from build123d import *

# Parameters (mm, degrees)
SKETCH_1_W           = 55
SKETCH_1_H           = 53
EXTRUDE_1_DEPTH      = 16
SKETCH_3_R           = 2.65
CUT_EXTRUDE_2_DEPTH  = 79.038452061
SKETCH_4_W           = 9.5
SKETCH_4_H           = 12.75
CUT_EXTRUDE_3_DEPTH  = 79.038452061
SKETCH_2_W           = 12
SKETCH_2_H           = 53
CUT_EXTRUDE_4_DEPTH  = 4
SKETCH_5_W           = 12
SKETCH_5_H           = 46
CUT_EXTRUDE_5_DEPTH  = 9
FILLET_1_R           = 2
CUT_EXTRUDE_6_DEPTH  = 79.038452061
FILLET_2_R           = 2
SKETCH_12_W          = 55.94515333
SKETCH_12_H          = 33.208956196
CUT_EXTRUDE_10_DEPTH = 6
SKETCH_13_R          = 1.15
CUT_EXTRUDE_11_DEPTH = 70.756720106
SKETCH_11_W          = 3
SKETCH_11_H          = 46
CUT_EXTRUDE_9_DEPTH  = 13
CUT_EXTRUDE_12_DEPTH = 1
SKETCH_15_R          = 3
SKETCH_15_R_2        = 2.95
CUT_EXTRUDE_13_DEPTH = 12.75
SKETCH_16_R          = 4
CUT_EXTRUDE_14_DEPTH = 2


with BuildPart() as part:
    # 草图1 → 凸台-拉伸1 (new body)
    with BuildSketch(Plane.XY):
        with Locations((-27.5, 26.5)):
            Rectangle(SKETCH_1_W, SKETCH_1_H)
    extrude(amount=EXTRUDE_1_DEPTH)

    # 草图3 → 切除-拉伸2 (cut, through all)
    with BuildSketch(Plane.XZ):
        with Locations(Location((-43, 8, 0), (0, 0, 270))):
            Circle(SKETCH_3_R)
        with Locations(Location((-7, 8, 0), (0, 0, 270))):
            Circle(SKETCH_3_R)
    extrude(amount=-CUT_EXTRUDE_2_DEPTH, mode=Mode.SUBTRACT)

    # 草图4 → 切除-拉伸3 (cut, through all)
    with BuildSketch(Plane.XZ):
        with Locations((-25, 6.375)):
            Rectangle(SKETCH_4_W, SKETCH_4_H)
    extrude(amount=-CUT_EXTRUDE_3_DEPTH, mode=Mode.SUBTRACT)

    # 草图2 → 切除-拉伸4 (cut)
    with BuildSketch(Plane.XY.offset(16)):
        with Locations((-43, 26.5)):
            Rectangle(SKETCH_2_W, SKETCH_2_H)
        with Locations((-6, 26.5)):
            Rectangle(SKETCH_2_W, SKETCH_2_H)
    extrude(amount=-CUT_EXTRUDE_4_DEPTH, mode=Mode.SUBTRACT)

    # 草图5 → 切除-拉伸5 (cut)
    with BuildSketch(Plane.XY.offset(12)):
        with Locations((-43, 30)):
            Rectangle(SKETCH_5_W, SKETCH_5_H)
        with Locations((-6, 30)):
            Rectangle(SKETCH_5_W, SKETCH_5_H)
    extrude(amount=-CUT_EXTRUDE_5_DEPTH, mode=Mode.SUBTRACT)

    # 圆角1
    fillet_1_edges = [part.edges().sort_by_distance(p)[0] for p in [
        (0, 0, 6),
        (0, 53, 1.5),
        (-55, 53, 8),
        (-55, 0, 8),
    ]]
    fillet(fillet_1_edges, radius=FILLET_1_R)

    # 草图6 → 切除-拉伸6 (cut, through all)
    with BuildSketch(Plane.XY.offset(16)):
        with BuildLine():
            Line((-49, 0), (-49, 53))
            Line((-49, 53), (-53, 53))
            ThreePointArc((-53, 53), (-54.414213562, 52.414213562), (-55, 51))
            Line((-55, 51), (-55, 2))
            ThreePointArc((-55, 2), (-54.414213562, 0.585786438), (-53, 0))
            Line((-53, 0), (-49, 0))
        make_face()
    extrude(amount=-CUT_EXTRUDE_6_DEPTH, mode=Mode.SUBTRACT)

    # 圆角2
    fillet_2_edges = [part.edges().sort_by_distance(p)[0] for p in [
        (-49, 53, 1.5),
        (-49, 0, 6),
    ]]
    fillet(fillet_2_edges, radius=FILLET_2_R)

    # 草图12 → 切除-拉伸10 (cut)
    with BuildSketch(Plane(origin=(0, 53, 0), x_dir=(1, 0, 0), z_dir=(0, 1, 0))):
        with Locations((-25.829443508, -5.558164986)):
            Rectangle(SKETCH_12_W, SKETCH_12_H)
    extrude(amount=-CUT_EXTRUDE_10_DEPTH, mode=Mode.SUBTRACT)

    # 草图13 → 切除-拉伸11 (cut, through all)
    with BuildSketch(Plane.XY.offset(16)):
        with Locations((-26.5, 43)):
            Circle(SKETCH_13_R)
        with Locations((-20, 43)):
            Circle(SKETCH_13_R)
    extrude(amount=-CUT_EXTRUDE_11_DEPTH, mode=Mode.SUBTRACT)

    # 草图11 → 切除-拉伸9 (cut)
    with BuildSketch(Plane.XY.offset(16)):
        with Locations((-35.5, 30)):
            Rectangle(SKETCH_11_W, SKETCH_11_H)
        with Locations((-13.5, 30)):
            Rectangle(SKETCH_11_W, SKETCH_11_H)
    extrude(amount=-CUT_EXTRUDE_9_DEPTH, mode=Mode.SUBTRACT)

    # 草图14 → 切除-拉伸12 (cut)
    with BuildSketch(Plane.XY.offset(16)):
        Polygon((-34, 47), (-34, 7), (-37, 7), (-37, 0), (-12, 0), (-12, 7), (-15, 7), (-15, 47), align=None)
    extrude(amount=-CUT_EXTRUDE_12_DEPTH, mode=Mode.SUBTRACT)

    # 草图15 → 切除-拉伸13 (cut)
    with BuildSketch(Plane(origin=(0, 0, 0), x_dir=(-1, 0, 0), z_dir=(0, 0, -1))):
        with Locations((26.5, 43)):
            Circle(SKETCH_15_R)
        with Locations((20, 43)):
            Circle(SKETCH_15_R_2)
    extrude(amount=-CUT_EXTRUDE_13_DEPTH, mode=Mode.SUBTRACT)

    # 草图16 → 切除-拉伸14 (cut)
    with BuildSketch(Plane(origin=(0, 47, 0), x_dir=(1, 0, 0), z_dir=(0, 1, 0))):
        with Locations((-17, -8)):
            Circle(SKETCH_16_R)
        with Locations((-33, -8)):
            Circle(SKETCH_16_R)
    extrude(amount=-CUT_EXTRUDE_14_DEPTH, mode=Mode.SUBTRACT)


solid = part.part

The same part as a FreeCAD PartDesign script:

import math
import FreeCAD as App
import Part
import Sketcher

V = App.Vector


def edges_at(feature, points):
    """Names of the edges that pass closest to the given points."""
    edges = feature.Shape.Edges
    near = lambda p: min(range(len(edges)), key=lambda i: edges[i].distToShape(Part.Vertex(*p))[0])
    return sorted({f"Edge{near(p) + 1}" for p in points})

doc = App.newDocument("Part")
body = doc.addObject("PartDesign::Body", "Body")

sketch1 = doc.addObject("Sketcher::SketchObject", "Sketch")
body.addObject(sketch1)
sketch1.AttachmentSupport = (doc.XY_Plane, [""])
sketch1.MapMode = "FlatFace"
sketch1.addGeometry([
    Part.LineSegment(V(-55, 53, 0), V(-55, 0, 0)),
    Part.LineSegment(V(-55, 0, 0), V(0, 0, 0)),
    Part.LineSegment(V(0, 0, 0), V(0, 53, 0)),
    Part.LineSegment(V(0, 53, 0), V(-55, 53, 0)),
], False)
sketch1.addConstraint([
    Sketcher.Constraint("Coincident", 0, 2, 1, 1),
    Sketcher.Constraint("Coincident", 1, 2, 2, 1),
    Sketcher.Constraint("Coincident", 2, 2, 3, 1),
    Sketcher.Constraint("Coincident", 3, 2, 0, 1),
    Sketcher.Constraint("Vertical", 0),
    Sketcher.Constraint("Horizontal", 1),
    Sketcher.Constraint("Vertical", 2),
    Sketcher.Constraint("Horizontal", 3),
    Sketcher.Constraint("Coincident", 1, 2, -1, 1),
    Sketcher.Constraint("DistanceX", 1, 1, 1, 2, 55.0),
    Sketcher.Constraint("DistanceY", 0, 2, 0, 1, 53.0),
])
pad1 = doc.addObject("PartDesign::Pad", "Pad")
body.addObject(pad1)
pad1.Profile = sketch1
pad1.Length = 16

sketch2 = doc.addObject("Sketcher::SketchObject", "Sketch001")
body.addObject(sketch2)
sketch2.AttachmentSupport = (doc.XZ_Plane, [""])
sketch2.MapMode = "FlatFace"
sketch2.addGeometry([
    Part.Circle(V(-43, 8, 0), V(0, 0, 1), 2.6),
    Part.Circle(V(-7, 8, 0), V(0, 0, 1), 2.6),
], False)
sketch2.addConstraint([
    Sketcher.Constraint("Equal", 0, 1),
    Sketcher.Constraint("Horizontal", 0, 3, 1, 3),
    Sketcher.Constraint("Diameter", 0, 5.3),
    Sketcher.Constraint("DistanceX", 0, 3, -1, 1, 43.0),
    Sketcher.Constraint("DistanceY", -1, 1, 0, 3, 8.0),
    Sketcher.Constraint("DistanceX", 1, 3, -1, 1, 7.0),
])
pocket1 = doc.addObject("PartDesign::Pocket", "Pocket")
body.addObject(pocket1)
pocket1.Profile = sketch2
pocket1.Type = "ThroughAll"

sketch3 = doc.addObject("Sketcher::SketchObject", "Sketch002")
body.addObject(sketch3)
sketch3.AttachmentSupport = (doc.XZ_Plane, [""])
sketch3.MapMode = "FlatFace"
sketch3.addGeometry([
    Part.LineSegment(V(-30, 13, 0), V(-30, 0, 0)),
    Part.LineSegment(V(-30, 0, 0), V(-20, 0, 0)),
    Part.LineSegment(V(-20, 0, 0), V(-20, 13, 0)),
    Part.LineSegment(V(-20, 13, 0), V(-30, 13, 0)),
], False)
sketch3.addConstraint([
    Sketcher.Constraint("Coincident", 0, 2, 1, 1),
    Sketcher.Constraint("Coincident", 1, 2, 2, 1),
    Sketcher.Constraint("Coincident", 2, 2, 3, 1),
    Sketcher.Constraint("Coincident", 3, 2, 0, 1),
    Sketcher.Constraint("Vertical", 0),
    Sketcher.Constraint("Horizontal", 1),
    Sketcher.Constraint("Vertical", 2),
    Sketcher.Constraint("Horizontal", 3),
    Sketcher.Constraint("PointOnObject", 0, 2, -1),
    Sketcher.Constraint("DistanceX", 1, 1, 1, 2, 9.5),
    Sketcher.Constraint("DistanceY", 0, 2, 0, 1, 12.75),
    Sketcher.Constraint("DistanceX", 0, 2, -1, 1, 29.75),
])
pocket2 = doc.addObject("PartDesign::Pocket", "Pocket001")
body.addObject(pocket2)
pocket2.Profile = sketch3
pocket2.Type = "ThroughAll"

sketch4 = doc.addObject("Sketcher::SketchObject", "Sketch003")
body.addObject(sketch4)
sketch4.AttachmentSupport = (doc.XY_Plane, [""])
sketch4.MapMode = "FlatFace"
sketch4.AttachmentOffset = App.Placement(V(0, 0, 16), App.Rotation())
sketch4.addGeometry([
    Part.LineSegment(V(-49, 53, 0), V(-49, 0, 0)),
    Part.LineSegment(V(-49, 0, 0), V(-37, 0, 0)),
    Part.LineSegment(V(-37, 0, 0), V(-37, 53, 0)),
    Part.LineSegment(V(-37, 53, 0), V(-49, 53, 0)),
    Part.LineSegment(V(-12, 53, 0), V(-12, 0, 0)),
    Part.LineSegment(V(-12, 0, 0), V(0, 0, 0)),
    Part.LineSegment(V(0, 0, 0), V(0, 53, 0)),
    Part.LineSegment(V(0, 53, 0), V(-12, 53, 0)),
], False)
sketch4.addConstraint([
    Sketcher.Constraint("Coincident", 0, 2, 1, 1),
    Sketcher.Constraint("Coincident", 1, 2, 2, 1),
    Sketcher.Constraint("Coincident", 2, 2, 3, 1),
    Sketcher.Constraint("Coincident", 3, 2, 0, 1),
    Sketcher.Constraint("Coincident", 4, 2, 5, 1),
    Sketcher.Constraint("Coincident", 5, 2, 6, 1),
    Sketcher.Constraint("Coincident", 6, 2, 7, 1),
    Sketcher.Constraint("Coincident", 7, 2, 4, 1),
    Sketcher.Constraint("Vertical", 0),
    Sketcher.Constraint("Horizontal", 1),
    Sketcher.Constraint("Vertical", 2),
    Sketcher.Constraint("Horizontal", 3),
    Sketcher.Constraint("Vertical", 4),
    Sketcher.Constraint("Horizontal", 5),
    Sketcher.Constraint("Vertical", 6),
    Sketcher.Constraint("Horizontal", 7),
    Sketcher.Constraint("Coincident", 5, 2, -1, 1),
    Sketcher.Constraint("PointOnObject", 0, 2, -1),
    Sketcher.Constraint("Horizontal", 3, 2, 6, 2),
    Sketcher.Constraint("Equal", 3, 5),
    Sketcher.Constraint("DistanceX", 1, 1, 1, 2, 12.0),
    Sketcher.Constraint("DistanceY", 0, 2, 0, 1, 53.0),
    Sketcher.Constraint("DistanceX", 0, 2, -1, 1, 49.0),
])
pocket3 = doc.addObject("PartDesign::Pocket", "Pocket002")
body.addObject(pocket3)
pocket3.Profile = sketch4
pocket3.Length = 4

sketch5 = doc.addObject("Sketcher::SketchObject", "Sketch004")
body.addObject(sketch5)
sketch5.AttachmentSupport = (doc.XY_Plane, [""])
sketch5.MapMode = "FlatFace"
sketch5.AttachmentOffset = App.Placement(V(0, 0, 12), App.Rotation())
sketch5.addGeometry([
    Part.LineSegment(V(-49, 53, 0), V(-49, 7, 0)),
    Part.LineSegment(V(-49, 7, 0), V(-37, 7, 0)),
    Part.LineSegment(V(-37, 7, 0), V(-37, 53, 0)),
    Part.LineSegment(V(-37, 53, 0), V(-49, 53, 0)),
    Part.LineSegment(V(-12, 53, 0), V(-12, 7, 0)),
    Part.LineSegment(V(-12, 7, 0), V(0, 7, 0)),
    Part.LineSegment(V(0, 7, 0), V(0, 53, 0)),
    Part.LineSegment(V(0, 53, 0), V(-12, 53, 0)),
], False)
sketch5.addConstraint([
    Sketcher.Constraint("Coincident", 0, 2, 1, 1),
    Sketcher.Constraint("Coincident", 1, 2, 2, 1),
    Sketcher.Constraint("Coincident", 2, 2, 3, 1),
    Sketcher.Constraint("Coincident", 3, 2, 0, 1),
    Sketcher.Constraint("Coincident", 4, 2, 5, 1),
    Sketcher.Constraint("Coincident", 5, 2, 6, 1),
    Sketcher.Constraint("Coincident", 6, 2, 7, 1),
    Sketcher.Constraint("Coincident", 7, 2, 4, 1),
    Sketcher.Constraint("Vertical", 0),
    Sketcher.Constraint("Horizontal", 1),
    Sketcher.Constraint("Vertical", 2),
    Sketcher.Constraint("Horizontal", 3),
    Sketcher.Constraint("Vertical", 4),
    Sketcher.Constraint("Horizontal", 5),
    Sketcher.Constraint("Vertical", 6),
    Sketcher.Constraint("Horizontal", 7),
    Sketcher.Constraint("PointOnObject", 5, 2, -2),
    Sketcher.Constraint("Horizontal", 1, 2, 4, 2),
    Sketcher.Constraint("Horizontal", 3, 2, 6, 2),
    Sketcher.Constraint("Equal", 3, 5),
    Sketcher.Constraint("DistanceX", 1, 1, 1, 2, 12.0),
    Sketcher.Constraint("DistanceY", 0, 2, 0, 1, 46.0),
    Sketcher.Constraint("DistanceX", 0, 2, -1, 1, 49.0),
    Sketcher.Constraint("DistanceY", -1, 1, 0, 2, 7.0),
])
pocket4 = doc.addObject("PartDesign::Pocket", "Pocket003")
body.addObject(pocket4)
pocket4.Profile = sketch5
pocket4.Length = 9
doc.recompute()

fillet = doc.addObject("PartDesign::Fillet", "Fillet")
body.addObject(fillet)
fillet.Base = (pocket4, edges_at(pocket4, [
    (0, 0, 6),
    (0, 53, 1.5),
    (-55, 53, 8),
    (-55, 0, 8),
]))
fillet.Radius = 2

sketch6 = doc.addObject("Sketcher::SketchObject", "Sketch005")
body.addObject(sketch6)
sketch6.AttachmentSupport = (doc.XY_Plane, [""])
sketch6.MapMode = "FlatFace"
sketch6.AttachmentOffset = App.Placement(V(0, 0, 16), App.Rotation())
sketch6.addGeometry([
    Part.LineSegment(V(-49, 0, 0), V(-49, 53, 0)),
    Part.LineSegment(V(-49, 53, 0), V(-53, 53, 0)),
    Part.ArcOfCircle(Part.Circle(V(-53, 51, 0), V(0, 0, 1), 2), math.radians(90), math.radians(180)),
    Part.LineSegment(V(-55, 51, 0), V(-55, 2, 0)),
    Part.ArcOfCircle(Part.Circle(V(-53, 2, 0), V(0, 0, 1), 2), math.radians(-180), math.radians(-90)),
    Part.LineSegment(V(-53, 0, 0), V(-49, 0, 0)),
], False)
sketch6.addConstraint([
    Sketcher.Constraint("Coincident", 0, 2, 1, 1),
    Sketcher.Constraint("Tangent", 1, 2, 2, 1),
    Sketcher.Constraint("Tangent", 2, 2, 3, 1),
    Sketcher.Constraint("Tangent", 3, 2, 4, 1),
    Sketcher.Constraint("Tangent", 4, 2, 5, 1),
    Sketcher.Constraint("Coincident", 5, 2, 0, 1),
    Sketcher.Constraint("Vertical", 0),
    Sketcher.Constraint("Horizontal", 1),
    Sketcher.Constraint("Vertical", 3),
    Sketcher.Constraint("Horizontal", 5),
    Sketcher.Constraint("Equal", 2, 4),
    Sketcher.Constraint("PointOnObject", 4, 2, -1),
    Sketcher.Constraint("Radius", 2, 2.0),
    Sketcher.Constraint("DistanceX", 1, 2, 1, 1, 4.0),
    Sketcher.Constraint("DistanceY", 0, 1, 0, 2, 53.0),
    Sketcher.Constraint("DistanceX", 2, 3, -1, 1, 53.0),
])
pocket5 = doc.addObject("PartDesign::Pocket", "Pocket004")
body.addObject(pocket5)
pocket5.Profile = sketch6
pocket5.Type = "ThroughAll"
doc.recompute()

fillet2 = doc.addObject("PartDesign::Fillet", "Fillet001")
body.addObject(fillet2)
fillet2.Base = (pocket5, edges_at(pocket5, [(-49, 53, 1.5), (-49, 0, 6)]))
fillet2.Radius = 2

sketch7 = doc.addObject("Sketcher::SketchObject", "Sketch006")
body.addObject(sketch7)
sketch7.AttachmentSupport = (doc.XZ_Plane, [""])
sketch7.MapMode = "FlatFace"
sketch7.AttachmentOffset = App.Placement(V(0, 0, -53), App.Rotation())
sketch7.addGeometry([
    Part.LineSegment(V(-54, -11, 0), V(-54, 22, 0)),
    Part.LineSegment(V(-54, 22, 0), V(2, 22, 0)),
    Part.LineSegment(V(2, 22, 0), V(2, -11, 0)),
    Part.LineSegment(V(2, -11, 0), V(-54, -11, 0)),
], False)
sketch7.addConstraint([
    Sketcher.Constraint("Coincident", 0, 2, 1, 1),
    Sketcher.Constraint("Coincident", 1, 2, 2, 1),
    Sketcher.Constraint("Coincident", 2, 2, 3, 1),
    Sketcher.Constraint("Coincident", 3, 2, 0, 1),
    Sketcher.Constraint("Vertical", 0),
    Sketcher.Constraint("Horizontal", 1),
    Sketcher.Constraint("Vertical", 2),
    Sketcher.Constraint("Horizontal", 3),
    Sketcher.Constraint("DistanceX", 1, 1, 1, 2, 55.945153),
    Sketcher.Constraint("DistanceY", 0, 1, 0, 2, 33.208956),
    Sketcher.Constraint("DistanceX", 0, 2, -1, 1, 53.80202),
    Sketcher.Constraint("DistanceY", -1, 1, 0, 2, 22.162643),
])
pocket6 = doc.addObject("PartDesign::Pocket", "Pocket005")
body.addObject(pocket6)
pocket6.Profile = sketch7
pocket6.Length = 6
pocket6.Reversed = True

sketch8 = doc.addObject("Sketcher::SketchObject", "Sketch007")
body.addObject(sketch8)
sketch8.AttachmentSupport = (doc.XY_Plane, [""])
sketch8.MapMode = "FlatFace"
sketch8.AttachmentOffset = App.Placement(V(0, 0, 16), App.Rotation())
sketch8.addGeometry([
    Part.Circle(V(-26.5, 43, 0), V(0, 0, 1), 1.1),
    Part.Circle(V(-20, 43, 0), V(0, 0, 1), 1.1),
], False)
sketch8.addConstraint([
    Sketcher.Constraint("Equal", 0, 1),
    Sketcher.Constraint("Horizontal", 0, 3, 1, 3),
    Sketcher.Constraint("Diameter", 0, 2.3),
    Sketcher.Constraint("DistanceY", -1, 1, 0, 3, 43.0),
    Sketcher.Constraint("DistanceX", 1, 3, -1, 1, 20.0),
    Sketcher.Constraint("DistanceX", 0, 3, -1, 1, 26.5),
])
pocket7 = doc.addObject("PartDesign::Pocket", "Pocket006")
body.addObject(pocket7)
pocket7.Profile = sketch8
pocket7.Type = "ThroughAll"

sketch9 = doc.addObject("Sketcher::SketchObject", "Sketch008")
body.addObject(sketch9)
sketch9.AttachmentSupport = (doc.XY_Plane, [""])
sketch9.MapMode = "FlatFace"
sketch9.AttachmentOffset = App.Placement(V(0, 0, 16), App.Rotation())
sketch9.addGeometry([
    Part.LineSegment(V(-37, 53, 0), V(-37, 7, 0)),
    Part.LineSegment(V(-37, 7, 0), V(-34, 7, 0)),
    Part.LineSegment(V(-34, 7, 0), V(-34, 53, 0)),
    Part.LineSegment(V(-34, 53, 0), V(-37, 53, 0)),
    Part.LineSegment(V(-15, 53, 0), V(-15, 7, 0)),
    Part.LineSegment(V(-15, 7, 0), V(-12, 7, 0)),
    Part.LineSegment(V(-12, 7, 0), V(-12, 53, 0)),
    Part.LineSegment(V(-12, 53, 0), V(-15, 53, 0)),
], False)
sketch9.addConstraint([
    Sketcher.Constraint("Coincident", 0, 2, 1, 1),
    Sketcher.Constraint("Coincident", 1, 2, 2, 1),
    Sketcher.Constraint("Coincident", 2, 2, 3, 1),
    Sketcher.Constraint("Coincident", 3, 2, 0, 1),
    Sketcher.Constraint("Coincident", 4, 2, 5, 1),
    Sketcher.Constraint("Coincident", 5, 2, 6, 1),
    Sketcher.Constraint("Coincident", 6, 2, 7, 1),
    Sketcher.Constraint("Coincident", 7, 2, 4, 1),
    Sketcher.Constraint("Vertical", 0),
    Sketcher.Constraint("Horizontal", 1),
    Sketcher.Constraint("Vertical", 2),
    Sketcher.Constraint("Horizontal", 3),
    Sketcher.Constraint("Vertical", 4),
    Sketcher.Constraint("Horizontal", 5),
    Sketcher.Constraint("Vertical", 6),
    Sketcher.Constraint("Horizontal", 7),
    Sketcher.Constraint("Horizontal", 1, 2, 4, 2),
    Sketcher.Constraint("Horizontal", 3, 2, 6, 2),
    Sketcher.Constraint("Equal", 3, 5),
    Sketcher.Constraint("DistanceX", 1, 1, 1, 2, 3.0),
    Sketcher.Constraint("DistanceY", 0, 2, 0, 1, 46.0),
    Sketcher.Constraint("DistanceX", 0, 2, -1, 1, 37.0),
    Sketcher.Constraint("DistanceY", -1, 1, 0, 2, 7.0),
    Sketcher.Constraint("DistanceX", 4, 2, -1, 1, 15.0),
])
pocket8 = doc.addObject("PartDesign::Pocket", "Pocket007")
body.addObject(pocket8)
pocket8.Profile = sketch9
pocket8.Length = 13

sketch10 = doc.addObject("Sketcher::SketchObject", "Sketch009")
body.addObject(sketch10)
sketch10.AttachmentSupport = (doc.XY_Plane, [""])
sketch10.MapMode = "FlatFace"
sketch10.AttachmentOffset = App.Placement(V(0, 0, 16), App.Rotation())
sketch10.addGeometry([
    Part.LineSegment(V(-34, 47, 0), V(-34, 7, 0)),
    Part.LineSegment(V(-34, 7, 0), V(-37, 7, 0)),
    Part.LineSegment(V(-37, 7, 0), V(-37, 0, 0)),
    Part.LineSegment(V(-37, 0, 0), V(-12, 0, 0)),
    Part.LineSegment(V(-12, 0, 0), V(-12, 7, 0)),
    Part.LineSegment(V(-12, 7, 0), V(-15, 7, 0)),
    Part.LineSegment(V(-15, 7, 0), V(-15, 47, 0)),
    Part.LineSegment(V(-15, 47, 0), V(-34, 47, 0)),
], False)
sketch10.addConstraint([
    Sketcher.Constraint("Coincident", 0, 2, 1, 1),
    Sketcher.Constraint("Coincident", 1, 2, 2, 1),
    Sketcher.Constraint("Coincident", 2, 2, 3, 1),
    Sketcher.Constraint("Coincident", 3, 2, 4, 1),
    Sketcher.Constraint("Coincident", 4, 2, 5, 1),
    Sketcher.Constraint("Coincident", 5, 2, 6, 1),
    Sketcher.Constraint("Coincident", 6, 2, 7, 1),
    Sketcher.Constraint("Coincident", 7, 2, 0, 1),
    Sketcher.Constraint("Vertical", 0),
    Sketcher.Constraint("Horizontal", 1),
    Sketcher.Constraint("Vertical", 2),
    Sketcher.Constraint("Horizontal", 3),
    Sketcher.Constraint("Vertical", 4),
    Sketcher.Constraint("Horizontal", 5),
    Sketcher.Constraint("Vertical", 6),
    Sketcher.Constraint("Horizontal", 7),
    Sketcher.Constraint("PointOnObject", 2, 2, -1),
    Sketcher.Constraint("Horizontal", 1, 2, 4, 2),
    Sketcher.Constraint("Equal", 1, 5),
    Sketcher.Constraint("DistanceX", 1, 2, 1, 1, 3.0),
    Sketcher.Constraint("DistanceX", 3, 1, 3, 2, 25.0),
    Sketcher.Constraint("DistanceY", 0, 2, 0, 1, 40.0),
    Sketcher.Constraint("DistanceY", 2, 2, 2, 1, 7.0),
    Sketcher.Constraint("DistanceX", 0, 2, -1, 1, 34.0),
])
pocket9 = doc.addObject("PartDesign::Pocket", "Pocket008")
body.addObject(pocket9)
pocket9.Profile = sketch10
pocket9.Length = 1

sketch11 = doc.addObject("Sketcher::SketchObject", "Sketch010")
body.addObject(sketch11)
sketch11.AttachmentSupport = (doc.XY_Plane, [""])
sketch11.MapMode = "FlatFace"
sketch11.addGeometry([
    Part.Circle(V(-26.5, 43, 0), V(0, 0, 1), 3),
    Part.Circle(V(-20, 43, 0), V(0, 0, 1), 3),
], False)
sketch11.addConstraint([
    Sketcher.Constraint("Horizontal", 0, 3, 1, 3),
    Sketcher.Constraint("Diameter", 0, 6.0),
    Sketcher.Constraint("Diameter", 1, 5.9),
    Sketcher.Constraint("DistanceY", -1, 1, 0, 3, 43.0),
    Sketcher.Constraint("DistanceX", 1, 3, -1, 1, 20.0),
    Sketcher.Constraint("DistanceX", 0, 3, -1, 1, 26.5),
])
pocket10 = doc.addObject("PartDesign::Pocket", "Pocket009")
body.addObject(pocket10)
pocket10.Profile = sketch11
pocket10.Length = 12.75
pocket10.Reversed = True

sketch12 = doc.addObject("Sketcher::SketchObject", "Sketch011")
body.addObject(sketch12)
sketch12.AttachmentSupport = (doc.XZ_Plane, [""])
sketch12.MapMode = "FlatFace"
sketch12.AttachmentOffset = App.Placement(V(0, 0, -47), App.Rotation())
sketch12.addGeometry([
    Part.Circle(V(-17, 8, 0), V(0, 0, 1), 4),
    Part.Circle(V(-33, 8, 0), V(0, 0, 1), 4),
], False)
sketch12.addConstraint([
    Sketcher.Constraint("Equal", 0, 1),
    Sketcher.Constraint("Horizontal", 0, 3, 1, 3),
    Sketcher.Constraint("Diameter", 0, 8.0),
    Sketcher.Constraint("DistanceX", 0, 3, -1, 1, 17.0),
    Sketcher.Constraint("DistanceY", -1, 1, 0, 3, 8.0),
    Sketcher.Constraint("DistanceX", 1, 3, -1, 1, 33.0),
])
pocket11 = doc.addObject("PartDesign::Pocket", "Pocket010")
body.addObject(pocket11)
pocket11.Profile = sketch12
pocket11.Length = 2
pocket11.Reversed = True

doc.recompute()
